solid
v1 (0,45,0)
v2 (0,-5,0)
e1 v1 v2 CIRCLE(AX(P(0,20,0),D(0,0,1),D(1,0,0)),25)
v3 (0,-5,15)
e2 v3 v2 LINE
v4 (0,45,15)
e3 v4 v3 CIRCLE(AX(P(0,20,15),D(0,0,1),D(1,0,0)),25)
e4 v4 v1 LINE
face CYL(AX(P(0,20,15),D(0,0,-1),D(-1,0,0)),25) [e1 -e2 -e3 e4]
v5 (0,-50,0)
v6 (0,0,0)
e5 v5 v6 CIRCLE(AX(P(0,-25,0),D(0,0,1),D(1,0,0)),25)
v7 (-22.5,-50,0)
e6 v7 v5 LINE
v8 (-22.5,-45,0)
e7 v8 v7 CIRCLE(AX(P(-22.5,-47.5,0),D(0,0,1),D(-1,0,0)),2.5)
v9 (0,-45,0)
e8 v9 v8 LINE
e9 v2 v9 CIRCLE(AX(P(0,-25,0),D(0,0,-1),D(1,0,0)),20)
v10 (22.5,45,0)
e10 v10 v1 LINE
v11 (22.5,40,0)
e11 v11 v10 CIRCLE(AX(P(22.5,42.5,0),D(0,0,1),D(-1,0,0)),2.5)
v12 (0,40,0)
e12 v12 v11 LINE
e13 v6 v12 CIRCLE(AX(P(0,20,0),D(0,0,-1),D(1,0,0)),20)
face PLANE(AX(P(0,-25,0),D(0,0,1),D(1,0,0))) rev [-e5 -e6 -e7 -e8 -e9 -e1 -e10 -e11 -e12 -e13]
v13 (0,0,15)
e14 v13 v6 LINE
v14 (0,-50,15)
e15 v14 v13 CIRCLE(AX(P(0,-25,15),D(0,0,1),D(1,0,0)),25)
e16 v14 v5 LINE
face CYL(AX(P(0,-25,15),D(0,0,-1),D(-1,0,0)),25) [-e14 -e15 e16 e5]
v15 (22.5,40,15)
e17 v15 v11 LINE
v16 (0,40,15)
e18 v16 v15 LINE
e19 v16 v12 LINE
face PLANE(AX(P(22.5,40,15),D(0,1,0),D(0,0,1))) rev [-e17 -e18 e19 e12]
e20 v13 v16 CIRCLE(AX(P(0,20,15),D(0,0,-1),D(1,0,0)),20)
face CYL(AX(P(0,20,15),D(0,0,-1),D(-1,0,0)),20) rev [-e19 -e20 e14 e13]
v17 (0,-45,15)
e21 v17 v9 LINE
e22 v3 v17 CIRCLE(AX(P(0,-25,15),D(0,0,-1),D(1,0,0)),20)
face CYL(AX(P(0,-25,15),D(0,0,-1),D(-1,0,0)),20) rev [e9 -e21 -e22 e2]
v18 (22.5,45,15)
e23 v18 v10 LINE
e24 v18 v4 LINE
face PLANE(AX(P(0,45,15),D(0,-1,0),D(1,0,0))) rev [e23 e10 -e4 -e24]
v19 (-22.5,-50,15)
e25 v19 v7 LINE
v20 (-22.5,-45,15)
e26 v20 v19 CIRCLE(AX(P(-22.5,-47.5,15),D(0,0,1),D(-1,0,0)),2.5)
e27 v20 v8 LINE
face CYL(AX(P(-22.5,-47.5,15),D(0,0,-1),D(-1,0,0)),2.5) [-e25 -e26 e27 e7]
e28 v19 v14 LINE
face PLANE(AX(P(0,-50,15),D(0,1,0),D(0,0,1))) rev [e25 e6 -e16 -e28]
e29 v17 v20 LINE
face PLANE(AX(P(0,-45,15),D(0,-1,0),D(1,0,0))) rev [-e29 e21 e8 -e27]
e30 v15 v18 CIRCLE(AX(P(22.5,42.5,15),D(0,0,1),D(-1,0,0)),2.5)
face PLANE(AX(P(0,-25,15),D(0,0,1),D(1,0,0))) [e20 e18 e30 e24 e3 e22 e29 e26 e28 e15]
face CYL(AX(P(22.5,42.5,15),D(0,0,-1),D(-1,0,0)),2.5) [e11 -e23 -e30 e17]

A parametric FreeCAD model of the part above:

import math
import FreeCAD as App
import Part
import Sketcher

doc = App.newDocument("Part")
body = doc.addObject("PartDesign::Body", "Body")

# Sketch on XY plane
sketch1 = body.newObject("Sketcher::SketchObject", "Sketch")
sketch1.AttachmentSupport = (doc.getObject("XY_Plane"), [""])
sketch1.MapMode = "FlatFace"
sketch1.addGeometry([
    Part.LineSegment(App.Vector(22.5, 45, 0), App.Vector(0, 45, 0)),  # 0
    Part.ArcOfCircle(Part.Circle(App.Vector(0, 20, 0), App.Vector(0, 0, 1), 25), math.radians(90), math.radians(270)),  # 1
    Part.ArcOfCircle(Part.Circle(App.Vector(0, -25, 0), App.Vector(0, 0, 1), 20), math.radians(-90), math.radians(90)),  # 2
    Part.LineSegment(App.Vector(0, -45, 0), App.Vector(-22.5, -45, 0)),  # 3
    Part.ArcOfCircle(Part.Circle(App.Vector(-22.5, -47.5, 0), App.Vector(0, 0, 1), 2.5), math.radians(90), math.radians(270)),  # 4
    Part.LineSegment(App.Vector(-22.5, -50, 0), App.Vector(0, -50, 0)),  # 5
    Part.ArcOfCircle(Part.Circle(App.Vector(0, -25, 0), App.Vector(0, 0, 1), 25), math.radians(-90), math.radians(90)),  # 6
    Part.ArcOfCircle(Part.Circle(App.Vector(0, 20, 0), App.Vector(0, 0, 1), 20), math.radians(90), math.radians(270)),  # 7
    Part.LineSegment(App.Vector(0, 40, 0), App.Vector(22.5, 40, 0)),  # 8
    Part.ArcOfCircle(Part.Circle(App.Vector(22.5, 42.5, 0), App.Vector(0, 0, 1), 2.5), math.radians(-90), math.radians(90)),  # 9
], False)
sketch1.addConstraint([
    Sketcher.Constraint("Tangent", 0, 2, 1, 1),
    Sketcher.Constraint("Tangent", 1, 2, 2, 2),
    Sketcher.Constraint("Tangent", 2, 1, 3, 1),
    Sketcher.Constraint("Tangent", 3, 2, 4, 1),
    Sketcher.Constraint("Tangent", 4, 2, 5, 1),
    Sketcher.Constraint("Tangent", 5, 2, 6, 1),
    Sketcher.Constraint("Tangent", 6, 2, 7, 2),
    Sketcher.Constraint("Tangent", 7, 1, 8, 1),
    Sketcher.Constraint("Tangent", 8, 2, 9, 1),
    Sketcher.Constraint("Tangent", 9, 2, 0, 1),
    Sketcher.Constraint("Horizontal", 0),
    Sketcher.Constraint("Horizontal", 3),
    Sketcher.Constraint("Horizontal", 5),
    Sketcher.Constraint("Horizontal", 8),
    Sketcher.Constraint("Coincident", 6, 2, -1, 1),
    Sketcher.Constraint("Coincident", 6, 3, 2, 3),
    Sketcher.Constraint("Coincident", 7, 3, 1, 3),
    Sketcher.Constraint("Equal", 1, 6),
    Sketcher.Constraint("PointOnObject", 1, 3, -2),
    Sketcher.Constraint("Equal", 0, 3),
    Sketcher.Constraint("Radius", 1, 25.0),
    Sketcher.Constraint("Radius", 2, 20.0),
    Sketcher.Constraint("DistanceX", 0, 2, 0, 1, 22.5),
])
pad1 = body.newObject("PartDesign::Pad", "Pad")
pad1.Profile = sketch1
pad1.Length = 15

doc.recompute()
